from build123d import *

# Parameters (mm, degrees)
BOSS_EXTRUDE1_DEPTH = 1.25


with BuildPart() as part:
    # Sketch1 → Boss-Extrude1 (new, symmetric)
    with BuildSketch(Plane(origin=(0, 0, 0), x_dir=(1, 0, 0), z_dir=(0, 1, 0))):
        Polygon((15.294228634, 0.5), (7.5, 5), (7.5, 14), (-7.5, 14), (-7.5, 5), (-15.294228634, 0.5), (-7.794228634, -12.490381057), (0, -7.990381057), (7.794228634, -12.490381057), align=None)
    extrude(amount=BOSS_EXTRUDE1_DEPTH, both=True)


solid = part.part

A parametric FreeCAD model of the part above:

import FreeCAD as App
import Part
import Sketcher
Q = App.Units.Quantity


def add_polygon(sketch, points):
    """Adds a closed chain of lines whose ends are joined by coincident constraints."""
    first, n = sketch.GeometryCount, len(points)
    for a, b in zip(points, points[1:] + points[:1]):
        sketch.addGeometry(Part.LineSegment(App.Vector(*a, 0), App.Vector(*b, 0)), False)
    for i in range(n):
        sketch.addConstraint(Sketcher.Constraint("Coincident", first + i, 2, first + (i + 1) % n, 1))

doc = App.newDocument("Part")
body = doc.addObject("PartDesign::Body", "Body")

# Sketch on XZ plane
sketch1 = doc.addObject("Sketcher::SketchObject", "Sketch")
body.addObject(sketch1)
sketch1.AttachmentSupport = (doc.XZ_Plane, [""])
sketch1.MapMode = "FlatFace"
add_polygon(sketch1, [(15, 0), (8, -5), (8, -14), (-8, -14), (-8, -5), (-15, 0), (-8, 12), (0, 8), (8, 12)])  # lines 0-8
sketch1.addConstraint([
    Sketcher.Constraint("Vertical", 1),
    Sketcher.Constraint("Horizontal", 2),
    Sketcher.Constraint("Vertical", 3),
    Sketcher.Constraint("Symmetric", 0, 2, 3, 2, -2),
    Sketcher.Constraint("Symmetric", 5, 2, 7, 2, -2),
    Sketcher.Constraint("Symmetric", 4, 2, 8, 2, -2),
    Sketcher.Constraint("PointOnObject", 6, 2, -2),
    Sketcher.Constraint("Perpendicular", 4, 5),
    Sketcher.Constraint("Perpendicular", 5, 6),
    Sketcher.Constraint("Equal", 4, 6),
    Sketcher.Constraint("DistanceX", 2, 2, 2, 1, 15.0),
    Sketcher.Constraint("DistanceY", 1, 2, 1, 1, 9.0),
    Sketcher.Constraint("Angle", 0, Q("-150 deg")),
    Sketcher.Constraint("Distance", 0, 9.0),
    Sketcher.Constraint("DistanceY", 0, 2, -1, 1, 5.0),
])
pad1 = doc.addObject("PartDesign::Pad", "Pad")
body.addObject(pad1)
pad1.Profile = sketch1
pad1.Length = 2.5
pad1.Midplane = True

doc.recompute()
